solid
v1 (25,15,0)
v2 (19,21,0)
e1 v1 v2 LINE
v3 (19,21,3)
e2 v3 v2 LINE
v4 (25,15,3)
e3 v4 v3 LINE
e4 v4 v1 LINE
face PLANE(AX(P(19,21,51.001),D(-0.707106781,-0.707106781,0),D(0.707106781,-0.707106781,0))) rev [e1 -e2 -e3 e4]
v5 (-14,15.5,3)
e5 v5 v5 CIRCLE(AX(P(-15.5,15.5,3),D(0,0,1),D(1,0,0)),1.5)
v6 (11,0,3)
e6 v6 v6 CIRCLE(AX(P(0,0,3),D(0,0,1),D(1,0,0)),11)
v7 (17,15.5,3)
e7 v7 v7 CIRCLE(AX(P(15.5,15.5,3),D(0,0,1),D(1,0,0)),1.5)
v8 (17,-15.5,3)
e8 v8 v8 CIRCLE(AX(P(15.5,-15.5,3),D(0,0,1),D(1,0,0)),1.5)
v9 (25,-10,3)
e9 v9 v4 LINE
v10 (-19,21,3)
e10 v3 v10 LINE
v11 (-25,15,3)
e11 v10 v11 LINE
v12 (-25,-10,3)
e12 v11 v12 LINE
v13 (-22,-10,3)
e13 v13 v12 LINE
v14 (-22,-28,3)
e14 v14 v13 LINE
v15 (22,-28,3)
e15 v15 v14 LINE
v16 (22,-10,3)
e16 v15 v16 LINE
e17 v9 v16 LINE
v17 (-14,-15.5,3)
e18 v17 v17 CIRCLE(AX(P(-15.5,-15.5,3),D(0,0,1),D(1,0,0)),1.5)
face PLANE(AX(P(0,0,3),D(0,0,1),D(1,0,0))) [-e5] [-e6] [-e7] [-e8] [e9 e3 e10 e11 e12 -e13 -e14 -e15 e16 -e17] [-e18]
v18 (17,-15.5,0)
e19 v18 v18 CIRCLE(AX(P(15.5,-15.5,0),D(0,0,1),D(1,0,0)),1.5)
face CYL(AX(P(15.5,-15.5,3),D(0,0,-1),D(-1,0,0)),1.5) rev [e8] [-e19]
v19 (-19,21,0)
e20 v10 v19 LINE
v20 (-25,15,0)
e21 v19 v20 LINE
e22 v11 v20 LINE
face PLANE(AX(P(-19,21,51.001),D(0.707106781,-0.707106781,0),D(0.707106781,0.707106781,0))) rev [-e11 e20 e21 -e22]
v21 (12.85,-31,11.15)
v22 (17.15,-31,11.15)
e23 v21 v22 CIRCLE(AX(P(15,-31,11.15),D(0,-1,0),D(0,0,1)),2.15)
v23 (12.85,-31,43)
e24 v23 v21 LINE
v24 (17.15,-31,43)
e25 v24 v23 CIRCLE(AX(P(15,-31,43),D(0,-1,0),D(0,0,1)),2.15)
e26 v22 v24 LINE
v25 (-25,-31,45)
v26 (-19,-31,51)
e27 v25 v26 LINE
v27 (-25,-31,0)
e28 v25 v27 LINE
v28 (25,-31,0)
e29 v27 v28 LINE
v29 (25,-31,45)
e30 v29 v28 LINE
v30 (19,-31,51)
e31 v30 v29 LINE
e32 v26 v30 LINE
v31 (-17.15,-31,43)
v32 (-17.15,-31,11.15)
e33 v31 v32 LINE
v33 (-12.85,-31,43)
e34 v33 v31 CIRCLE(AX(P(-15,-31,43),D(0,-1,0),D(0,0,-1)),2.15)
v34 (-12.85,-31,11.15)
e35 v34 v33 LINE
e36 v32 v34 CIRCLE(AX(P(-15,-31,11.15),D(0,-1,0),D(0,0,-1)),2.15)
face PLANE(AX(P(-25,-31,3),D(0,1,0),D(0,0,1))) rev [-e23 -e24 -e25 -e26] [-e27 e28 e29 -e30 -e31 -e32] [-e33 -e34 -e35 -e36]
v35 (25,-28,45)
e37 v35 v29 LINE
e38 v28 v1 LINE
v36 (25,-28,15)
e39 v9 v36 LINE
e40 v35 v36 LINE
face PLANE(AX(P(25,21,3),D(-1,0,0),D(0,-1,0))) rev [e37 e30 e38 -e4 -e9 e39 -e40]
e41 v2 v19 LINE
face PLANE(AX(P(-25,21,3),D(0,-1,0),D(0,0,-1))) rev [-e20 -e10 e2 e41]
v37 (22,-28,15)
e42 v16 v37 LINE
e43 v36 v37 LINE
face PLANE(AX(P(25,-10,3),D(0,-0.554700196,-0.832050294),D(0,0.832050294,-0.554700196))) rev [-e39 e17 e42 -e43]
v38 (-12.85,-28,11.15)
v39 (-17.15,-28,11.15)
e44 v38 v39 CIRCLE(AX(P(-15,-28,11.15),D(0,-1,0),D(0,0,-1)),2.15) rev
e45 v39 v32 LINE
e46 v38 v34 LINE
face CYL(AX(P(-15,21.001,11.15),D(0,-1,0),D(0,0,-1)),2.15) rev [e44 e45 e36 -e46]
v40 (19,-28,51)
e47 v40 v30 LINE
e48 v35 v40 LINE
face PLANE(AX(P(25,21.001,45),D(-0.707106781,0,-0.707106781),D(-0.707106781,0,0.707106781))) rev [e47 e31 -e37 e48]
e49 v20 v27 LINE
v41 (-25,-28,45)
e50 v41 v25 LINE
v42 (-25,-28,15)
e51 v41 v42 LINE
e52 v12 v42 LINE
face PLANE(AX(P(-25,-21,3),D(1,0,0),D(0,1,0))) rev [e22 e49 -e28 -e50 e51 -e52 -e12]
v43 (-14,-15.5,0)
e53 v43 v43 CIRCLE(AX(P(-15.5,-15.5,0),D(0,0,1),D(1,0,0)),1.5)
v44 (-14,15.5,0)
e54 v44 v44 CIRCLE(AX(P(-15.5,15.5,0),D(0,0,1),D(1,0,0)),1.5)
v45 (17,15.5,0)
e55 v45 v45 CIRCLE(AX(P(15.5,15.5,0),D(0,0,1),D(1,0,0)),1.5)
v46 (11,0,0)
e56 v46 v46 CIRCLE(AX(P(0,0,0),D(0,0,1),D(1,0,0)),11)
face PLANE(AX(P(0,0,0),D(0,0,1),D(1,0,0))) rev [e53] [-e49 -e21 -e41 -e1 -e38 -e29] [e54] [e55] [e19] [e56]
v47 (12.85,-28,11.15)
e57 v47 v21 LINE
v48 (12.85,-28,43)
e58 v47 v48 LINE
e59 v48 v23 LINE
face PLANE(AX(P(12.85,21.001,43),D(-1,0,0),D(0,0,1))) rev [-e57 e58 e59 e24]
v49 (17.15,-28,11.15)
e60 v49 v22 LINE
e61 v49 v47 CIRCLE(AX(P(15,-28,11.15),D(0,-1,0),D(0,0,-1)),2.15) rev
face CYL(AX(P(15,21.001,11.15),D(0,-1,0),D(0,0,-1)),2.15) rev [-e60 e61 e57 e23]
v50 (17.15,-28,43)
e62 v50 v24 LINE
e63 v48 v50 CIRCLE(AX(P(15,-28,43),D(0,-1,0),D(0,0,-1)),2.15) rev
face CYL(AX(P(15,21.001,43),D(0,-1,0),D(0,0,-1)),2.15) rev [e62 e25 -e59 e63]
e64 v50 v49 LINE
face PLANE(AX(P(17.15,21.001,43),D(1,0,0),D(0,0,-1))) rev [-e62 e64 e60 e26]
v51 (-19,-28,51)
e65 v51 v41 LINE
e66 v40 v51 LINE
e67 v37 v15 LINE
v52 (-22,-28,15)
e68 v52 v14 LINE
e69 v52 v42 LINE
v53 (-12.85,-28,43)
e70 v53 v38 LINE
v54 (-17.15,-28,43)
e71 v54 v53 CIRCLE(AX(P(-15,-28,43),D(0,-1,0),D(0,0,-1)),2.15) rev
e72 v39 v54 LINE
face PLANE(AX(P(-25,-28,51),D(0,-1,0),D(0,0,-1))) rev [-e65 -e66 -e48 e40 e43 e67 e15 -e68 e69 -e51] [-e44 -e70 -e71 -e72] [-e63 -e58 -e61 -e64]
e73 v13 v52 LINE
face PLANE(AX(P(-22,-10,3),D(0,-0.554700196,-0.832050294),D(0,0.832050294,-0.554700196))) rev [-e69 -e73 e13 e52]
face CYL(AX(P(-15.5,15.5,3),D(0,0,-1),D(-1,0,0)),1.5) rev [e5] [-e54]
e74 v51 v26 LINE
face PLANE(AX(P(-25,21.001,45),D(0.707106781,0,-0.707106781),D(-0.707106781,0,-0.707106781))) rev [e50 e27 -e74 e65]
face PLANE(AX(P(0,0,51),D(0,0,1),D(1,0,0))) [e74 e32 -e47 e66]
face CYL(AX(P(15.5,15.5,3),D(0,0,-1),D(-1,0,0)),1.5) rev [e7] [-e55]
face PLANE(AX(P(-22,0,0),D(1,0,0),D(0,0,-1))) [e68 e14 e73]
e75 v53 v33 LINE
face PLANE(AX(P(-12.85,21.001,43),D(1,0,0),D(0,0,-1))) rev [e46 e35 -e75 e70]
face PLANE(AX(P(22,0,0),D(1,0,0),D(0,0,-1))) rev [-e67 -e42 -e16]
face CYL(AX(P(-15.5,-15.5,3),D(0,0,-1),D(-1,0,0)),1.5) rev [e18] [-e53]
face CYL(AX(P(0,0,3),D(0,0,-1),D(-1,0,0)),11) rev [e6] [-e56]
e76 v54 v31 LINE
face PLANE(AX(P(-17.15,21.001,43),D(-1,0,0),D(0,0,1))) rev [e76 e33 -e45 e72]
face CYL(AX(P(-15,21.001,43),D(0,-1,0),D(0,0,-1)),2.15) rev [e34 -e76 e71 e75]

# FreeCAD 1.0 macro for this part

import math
import FreeCAD as App
import Part
import Sketcher

V = App.Vector
Q = App.Units.Quantity

doc = App.newDocument("Part")
params = doc.addObject("Spreadsheet::Sheet", "Params")
for row, (alias, value) in enumerate([
    ("sketch1_diameter", "3 mm"),
    ("sketch1_diameter2", "22 mm"),
    ("sketch1_width", "50 mm"),
    ("sketch1_height", "52 mm"),
    ("pad1_length", "3 mm"),
    ("sketch2_width", "50 mm"),
    ("sketch2_height", "3 mm"),
    ("pad2_length", "48 mm"),
    ("sketch3_radius", "2.15 mm"),
    ("sketch3_height", "31.85 mm"),
    ("sketch4_radius", "2.15 mm"),
    ("sketch4_height", "31.85 mm"),
    ("sketch5_width", "18 mm"),
    ("sketch5_height", "12 mm"),
    ("pad3_length", "3 mm"),
    ("linearpattern_pitch", "47 mm"),
    ("sketch6_width", "6 mm"),
    ("sketch7_width", "6 mm"),
    ("sketch8_width", "6 mm"),
    ("sketch9_width", "6 mm"),
], start=1):
    params.set(f"A{row}", alias)
    params.set(f"B{row}", "=" + value)
    params.setAlias(f"B{row}", alias)

body = doc.addObject("PartDesign::Body", "Body")

sketch1 = body.newObject("Sketcher::SketchObject", "Sketch")
sketch1.AttachmentSupport = (doc.getObject("XY_Plane"), [""])
sketch1.MapMode = "FlatFace"
sketch1.addGeometry(Part.LineSegment(V(25, 21, 0), V(-25, 21, 0)), False)
sketch1.addGeometry(Part.LineSegment(V(-25, 21, 0), V(-25, -31, 0)), False)
sketch1.addGeometry(Part.LineSegment(V(-25, -31, 0), V(25, -31, 0)), False)
sketch1.addGeometry(Part.LineSegment(V(25, -31, 0), V(25, 21, 0)), False)
sketch1.addGeometry(Part.Circle(V(15.5, -15.5, 0), V(0, 0, 1), 1.5), False)
sketch1.addGeometry(Part.Circle(V(-15.5, -15.5, 0), V(0, 0, 1), 1.5), False)
sketch1.addGeometry(Part.Circle(V(15.5, 15.5, 0), V(0, 0, 1), 1.5), False)
sketch1.addGeometry(Part.Circle(V(0, 0, 0), V(0, 0, 1), 11), False)
sketch1.addGeometry(Part.Circle(V(-15.5, 15.5, 0), V(0, 0, 1), 1.5), False)
sketch1.addConstraint(Sketcher.Constraint("Coincident", 0, 2, 1, 1))
sketch1.addConstraint(Sketcher.Constraint("Coincident", 1, 2, 2, 1))
sketch1.addConstraint(Sketcher.Constraint("Coincident", 2, 2, 3, 1))
sketch1.addConstraint(Sketcher.Constraint("Coincident", 3, 2, 0, 1))
sketch1.addConstraint(Sketcher.Constraint("Horizontal", 0))
sketch1.addConstraint(Sketcher.Constraint("Vertical", 1))
sketch1.addConstraint(Sketcher.Constraint("Horizontal", 2))
sketch1.addConstraint(Sketcher.Constraint("Vertical", 3))
sketch1.addConstraint(Sketcher.Constraint("Coincident", 7, 3, -1, 1))
sketch1.addConstraint(Sketcher.Constraint("Equal", 4, 5))
sketch1.addConstraint(Sketcher.Constraint("Equal", 5, 6))
sketch1.addConstraint(Sketcher.Constraint("Equal", 6, 8))
sketch1.addConstraint(Sketcher.Constraint("Symmetric", 5, 3, 6, 3, -1, 1))
sketch1.addConstraint(Sketcher.Constraint("Symmetric", 4, 3, 8, 3, -1, 1))
sketch1.addConstraint(Sketcher.Constraint("Symmetric", 4, 3, 5, 3, -2))
sketch1.addConstraint(Sketcher.Constraint("Diameter", 4, Q("3 mm")))
sketch1.addConstraint(Sketcher.Constraint("Diameter", 7, Q("22 mm")))
sketch1.addConstraint(Sketcher.Constraint("DistanceX", 0, 2, 0, 1, Q("50 mm")))
sketch1.addConstraint(Sketcher.Constraint("DistanceY", 1, 2, 1, 1, Q("52 mm")))
sketch1.addConstraint(Sketcher.Constraint("DistanceX", 0, 2, -1, 1, Q("25 mm")))
sketch1.addConstraint(Sketcher.Constraint("DistanceY", -1, 1, 0, 2, Q("21 mm")))
sketch1.addConstraint(Sketcher.Constraint("DistanceX", 5, 3, 4, 3, Q("31 mm")))
sketch1.addConstraint(Sketcher.Constraint("DistanceY", 4, 3, 6, 3, Q("31 mm")))
sketch1.setExpression("Constraints[15]", "Params.sketch1_diameter")
sketch1.setExpression("Constraints[16]", "Params.sketch1_diameter2")
sketch1.setExpression("Constraints[17]", "Params.sketch1_width")
sketch1.setExpression("Constraints[18]", "Params.sketch1_height")
pad1 = body.newObject("PartDesign::Pad", "Pad")
pad1.Profile = sketch1
pad1.setExpression("Length", "Params.pad1_length")

sketch2 = body.newObject("Sketcher::SketchObject", "Sketch001")
sketch2.AttachmentSupport = (doc.getObject("XY_Plane"), [""])
sketch2.MapMode = "FlatFace"
sketch2.AttachmentOffset = App.Placement(V(0, 0, 3), App.Rotation())
sketch2.addGeometry(Part.LineSegment(V(-25, -28, 0), V(-25, -31, 0)), False)
sketch2.addGeometry(Part.LineSegment(V(-25, -31, 0), V(25, -31, 0)), False)
sketch2.addGeometry(Part.LineSegment(V(25, -31, 0), V(25, -28, 0)), False)
sketch2.addGeometry(Part.LineSegment(V(25, -28, 0), V(-25, -28, 0)), False)
sketch2.addConstraint(Sketcher.Constraint("Coincident", 0, 2, 1, 1))
sketch2.addConstraint(Sketcher.Constraint("Coincident", 1, 2, 2, 1))
sketch2.addConstraint(Sketcher.Constraint("Coincident", 2, 2, 3, 1))
sketch2.addConstraint(Sketcher.Constraint("Coincident", 3, 2, 0, 1))
sketch2.addConstraint(Sketcher.Constraint("Vertical", 0))
sketch2.addConstraint(Sketcher.Constraint("Horizontal", 1))
sketch2.addConstraint(Sketcher.Constraint("Vertical", 2))
sketch2.addConstraint(Sketcher.Constraint("Horizontal", 3))
sketch2.addConstraint(Sketcher.Constraint("DistanceX", 1, 1, 1, 2, Q("50 mm")))
sketch2.addConstraint(Sketcher.Constraint("DistanceY", 0, 2, 0, 1, Q("3 mm")))
sketch2.addConstraint(Sketcher.Constraint("DistanceX", 0, 2, -1, 1, Q("25 mm")))
sketch2.addConstraint(Sketcher.Constraint("DistanceY", 0, 2, -1, 1, Q("31 mm")))
sketch2.setExpression("Constraints[8]", "Params.sketch2_width")
sketch2.setExpression("Constraints[9]", "Params.sketch2_height")
pad2 = body.newObject("PartDesign::Pad", "Pad001")
pad2.Profile = sketch2
pad2.setExpression("Length", "Params.pad2_length")

sketch3 = body.newObject("Sketcher::SketchObject", "Sketch002")
sketch3.AttachmentSupport = (doc.getObject("XZ_Plane"), [""])
sketch3.MapMode = "FlatFace"
sketch3.AttachmentOffset = App.Placement(V(0, 0, 31), App.Rotation())
sketch3.addGeometry(Part.LineSegment(V(-12.85, 11.15, 0), V(-12.85, 43, 0)), False)
sketch3.addGeometry(Part.ArcOfCircle(Part.Circle(V(-15, 43, 0), V(0, 0, 1), 2.15), math.radians(0), math.radians(180)), False)
sketch3.addGeometry(Part.LineSegment(V(-17.15, 43, 0), V(-17.15, 11.15, 0)), False)
sketch3.addGeometry(Part.ArcOfCircle(Part.Circle(V(-15, 11.15, 0), V(0, 0, 1), 2.15), math.radians(180), math.radians(360)), False)
sketch3.addConstraint(Sketcher.Constraint("Tangent", 0, 2, 1, 1))
sketch3.addConstraint(Sketcher.Constraint("Tangent", 1, 2, 2, 1))
sketch3.addConstraint(Sketcher.Constraint("Tangent", 2, 2, 3, 1))
sketch3.addConstraint(Sketcher.Constraint("Tangent", 3, 2, 0, 1))
sketch3.addConstraint(Sketcher.Constraint("Vertical", 0))
sketch3.addConstraint(Sketcher.Constraint("Vertical", 2))
sketch3.addConstraint(Sketcher.Constraint("Radius", 1, Q("2.15 mm")))
sketch3.addConstraint(Sketcher.Constraint("DistanceX", 1, 3, -1, 1, Q("15 mm")))
sketch3.addConstraint(Sketcher.Constraint("DistanceY", -1, 1, 1, 3, Q("43 mm")))
sketch3.addConstraint(Sketcher.Constraint("DistanceY", 0, 1, 0, 2, Q("31.85 mm")))
sketch3.setExpression("Constraints[6]", "Params.sketch3_radius")
sketch3.setExpression("Constraints[9]", "Params.sketch3_height")
pocket1 = body.newObject("PartDesign::Pocket", "Pocket")
pocket1.Profile = sketch3
pocket1.Type = "UpToFirst"

sketch4 = body.newObject("Sketcher::SketchObject", "Sketch003")
sketch4.AttachmentSupport = (doc.getObject("XZ_Plane"), [""])
sketch4.MapMode = "FlatFace"
sketch4.AttachmentOffset = App.Placement(V(0, 0, 31), App.Rotation())
sketch4.addGeometry(Part.LineSegment(V(12.85, 43, 0), V(12.85, 11.15, 0)), False)
sketch4.addGeometry(Part.ArcOfCircle(Part.Circle(V(15, 11.15, 0), V(0, 0, 1), 2.15), math.radians(180), math.radians(360)), False)
sketch4.addGeometry(Part.LineSegment(V(17.15, 11.15, 0), V(17.15, 43, 0)), False)
sketch4.addGeometry(Part.ArcOfCircle(Part.Circle(V(15, 43, 0), V(0, 0, 1), 2.15), math.radians(0), math.radians(180)), False)
sketch4.addConstraint(Sketcher.Constraint("Tangent", 0, 2, 1, 1))
sketch4.addConstraint(Sketcher.Constraint("Tangent", 1, 2, 2, 1))
sketch4.addConstraint(Sketcher.Constraint("Tangent", 2, 2, 3, 1))
sketch4.addConstraint(Sketcher.Constraint("Tangent", 3, 2, 0, 1))
sketch4.addConstraint(Sketcher.Constraint("Vertical", 0))
sketch4.addConstraint(Sketcher.Constraint("Vertical", 2))
sketch4.addConstraint(Sketcher.Constraint("Radius", 1, Q("2.15 mm")))
sketch4.addConstraint(Sketcher.Constraint("DistanceX", -1, 1, 1, 3, Q("15 mm")))
sketch4.addConstraint(Sketcher.Constraint("DistanceY", -1, 1, 3, 3, Q("43 mm")))
sketch4.addConstraint(Sketcher.Constraint("DistanceY", 0, 2, 0, 1, Q("31.85 mm")))
sketch4.setExpression("Constraints[6]", "Params.sketch4_radius")
sketch4.setExpression("Constraints[9]", "Params.sketch4_height")
pocket2 = body.newObject("PartDesign::Pocket", "Pocket001")
pocket2.Profile = sketch4
pocket2.Type = "UpToFirst"

sketch5 = body.newObject("Sketcher::SketchObject", "Sketch004")
sketch5.AttachmentSupport = (doc.getObject("YZ_Plane"), [""])
sketch5.MapMode = "FlatFace"
sketch5.AttachmentOffset = App.Placement(V(0, 0, 22), App.Rotation())
sketch5.addGeometry(Part.LineSegment(V(-28, 3, 0), V(-10, 3, 0)), False)
sketch5.addGeometry(Part.LineSegment(V(-10, 3, 0), V(-28, 15, 0)), False)
sketch5.addGeometry(Part.LineSegment(V(-28, 15, 0), V(-28, 3, 0)), False)
sketch5.addConstraint(Sketcher.Constraint("Coincident", 0, 2, 1, 1))
sketch5.addConstraint(Sketcher.Constraint("Coincident", 1, 2, 2, 1))
sketch5.addConstraint(Sketcher.Constraint("Coincident", 2, 2, 0, 1))
sketch5.addConstraint(Sketcher.Constraint("Horizontal", 0))
sketch5.addConstraint(Sketcher.Constraint("Vertical", 2))
sketch5.addConstraint(Sketcher.Constraint("DistanceX", 0, 1, 0, 2, Q("18 mm")))
sketch5.addConstraint(Sketcher.Constraint("DistanceY", 2, 2, 2, 1, Q("12 mm")))
sketch5.addConstraint(Sketcher.Constraint("DistanceX", 0, 2, -1, 1, Q("10 mm")))
sketch5.addConstraint(Sketcher.Constraint("DistanceY", -1, 1, 0, 2, Q("3 mm")))
sketch5.setExpression("Constraints[5]", "Params.sketch5_width")
sketch5.setExpression("Constraints[6]", "Params.sketch5_height")
pad3 = body.newObject("PartDesign::Pad", "Pad002")
pad3.Profile = sketch5
pad3.setExpression("Length", "Params.pad3_length")
doc.recompute()

linearpattern = body.newObject("PartDesign::LinearPattern", "LinearPattern")
linearpattern.Originals = [pad3]
linearpattern.Direction = (doc.getObject("X_Axis"), [""])
linearpattern.Mode = "offset"
linearpattern.setExpression("Offset", "Params.linearpattern_pitch")
linearpattern.Occurrences = 2
linearpattern.Reversed = True
body.Tip = linearpattern

sketch6 = body.newObject("Sketcher::SketchObject", "Sketch005")
sketch6.AttachmentSupport = (doc.getObject("XY_Plane"), [""])
sketch6.MapMode = "FlatFace"
sketch6.addGeometry(Part.LineSegment(V(25, 15, 0), V(19, 21, 0)), False)
sketch6.addGeometry(Part.LineSegment(V(19, 21, 0), V(25, 21, 0)), False)
sketch6.addGeometry(Part.LineSegment(V(25, 21, 0), V(25, 15, 0)), False)
sketch6.addConstraint(Sketcher.Constraint("Coincident", 0, 2, 1, 1))
sketch6.addConstraint(Sketcher.Constraint("Coincident", 1, 2, 2, 1))
sketch6.addConstraint(Sketcher.Constraint("Coincident", 2, 2, 0, 1))
sketch6.addConstraint(Sketcher.Constraint("Horizontal", 1))
sketch6.addConstraint(Sketcher.Constraint("Vertical", 2))
sketch6.addConstraint(Sketcher.Constraint("Equal", 1, 2))
sketch6.addConstraint(Sketcher.Constraint("DistanceX", 1, 1, 1, 2, Q("6 mm")))
sketch6.addConstraint(Sketcher.Constraint("DistanceX", -1, 1, 0, 2, Q("19 mm")))
sketch6.addConstraint(Sketcher.Constraint("DistanceY", -1, 1, 0, 2, Q("21 mm")))
sketch6.setExpression("Constraints[6]", "Params.sketch6_width")
pocket3 = body.newObject("PartDesign::Pocket", "Pocket002")
pocket3.Profile = sketch6
pocket3.Type = "UpToFirst"
pocket3.Reversed = True

sketch7 = body.newObject("Sketcher::SketchObject", "Sketch006")
sketch7.AttachmentSupport = (doc.getObject("XY_Plane"), [""])
sketch7.MapMode = "FlatFace"
sketch7.addGeometry(Part.LineSegment(V(-25, 21, 0), V(-19, 21, 0)), False)
sketch7.addGeometry(Part.LineSegment(V(-19, 21, 0), V(-25, 15, 0)), False)
sketch7.addGeometry(Part.LineSegment(V(-25, 15, 0), V(-25, 21, 0)), False)
sketch7.addConstraint(Sketcher.Constraint("Coincident", 0, 2, 1, 1))
sketch7.addConstraint(Sketcher.Constraint("Coincident", 1, 2, 2, 1))
sketch7.addConstraint(Sketcher.Constraint("Coincident", 2, 2, 0, 1))
sketch7.addConstraint(Sketcher.Constraint("Horizontal", 0))
sketch7.addConstraint(Sketcher.Constraint("Vertical", 2))
sketch7.addConstraint(Sketcher.Constraint("Equal", 0, 2))
sketch7.addConstraint(Sketcher.Constraint("DistanceX", 0, 1, 0, 2, Q("6 mm")))
sketch7.addConstraint(Sketcher.Constraint("DistanceX", 0, 2, -1, 1, Q("19 mm")))
sketch7.addConstraint(Sketcher.Constraint("DistanceY", -1, 1, 0, 2, Q("21 mm")))
sketch7.setExpression("Constraints[6]", "Params.sketch7_width")
pocket4 = body.newObject("PartDesign::Pocket", "Pocket003")
pocket4.Profile = sketch7
pocket4.Type = "UpToFirst"
pocket4.Reversed = True

sketch8 = body.newObject("Sketcher::SketchObject", "Sketch007")
sketch8.AttachmentSupport = (doc.getObject("XZ_Plane"), [""])
sketch8.MapMode = "FlatFace"
sketch8.AttachmentOffset = App.Placement(V(0, 0, 31), App.Rotation())
sketch8.addGeometry(Part.LineSegment(V(-25, 51, 0), V(-25, 45, 0)), False)
sketch8.addGeometry(Part.LineSegment(V(-25, 45, 0), V(-19, 51, 0)), False)
sketch8.addGeometry(Part.LineSegment(V(-19, 51, 0), V(-25, 51, 0)), False)
sketch8.addConstraint(Sketcher.Constraint("Coincident", 0, 2, 1, 1))
sketch8.addConstraint(Sketcher.Constraint("Coincident", 1, 2, 2, 1))
sketch8.addConstraint(Sketcher.Constraint("Coincident", 2, 2, 0, 1))
sketch8.addConstraint(Sketcher.Constraint("Vertical", 0))
sketch8.addConstraint(Sketcher.Constraint("Horizontal", 2))
sketch8.addConstraint(Sketcher.Constraint("Equal", 2, 0))
sketch8.addConstraint(Sketcher.Constraint("DistanceX", 2, 2, 2, 1, Q("6 mm")))
sketch8.addConstraint(Sketcher.Constraint("DistanceX", 0, 2, -1, 1, Q("25 mm")))
sketch8.addConstraint(Sketcher.Constraint("DistanceY", -1, 1, 0, 2, Q("45 mm")))
sketch8.setExpression("Constraints[6]", "Params.sketch8_width")
pocket5 = body.newObject("PartDesign::Pocket", "Pocket004")
pocket5.Profile = sketch8
pocket5.Type = "UpToFirst"

sketch9 = body.newObject("Sketcher::SketchObject", "Sketch008")
sketch9.AttachmentSupport = (doc.getObject("XZ_Plane"), [""])
sketch9.MapMode = "FlatFace"
sketch9.AttachmentOffset = App.Placement(V(0, 0, 31), App.Rotation())
sketch9.addGeometry(Part.LineSegment(V(25, 51, 0), V(19, 51, 0)), False)
sketch9.addGeometry(Part.LineSegment(V(19, 51, 0), V(25, 45, 0)), False)
sketch9.addGeometry(Part.LineSegment(V(25, 45, 0), V(25, 51, 0)), False)
sketch9.addConstraint(Sketcher.Constraint("Coincident", 0, 2, 1, 1))
sketch9.addConstraint(Sketcher.Constraint("Coincident", 1, 2, 2, 1))
sketch9.addConstraint(Sketcher.Constraint("Coincident", 2, 2, 0, 1))
sketch9.addConstraint(Sketcher.Constraint("Horizontal", 0))
sketch9.addConstraint(Sketcher.Constraint("Vertical", 2))
sketch9.addConstraint(Sketcher.Constraint("Equal", 0, 2))
sketch9.addConstraint(Sketcher.Constraint("DistanceX", 0, 2, 0, 1, Q("6 mm")))
sketch9.addConstraint(Sketcher.Constraint("DistanceX", -1, 1, 0, 2, Q("19 mm")))
sketch9.addConstraint(Sketcher.Constraint("DistanceY", -1, 1, 0, 2, Q("51 mm")))
sketch9.setExpression("Constraints[6]", "Params.sketch9_width")
pocket6 = body.newObject("PartDesign::Pocket", "Pocket005")
pocket6.Profile = sketch9
pocket6.Type = "UpToFirst"

doc.recompute()
